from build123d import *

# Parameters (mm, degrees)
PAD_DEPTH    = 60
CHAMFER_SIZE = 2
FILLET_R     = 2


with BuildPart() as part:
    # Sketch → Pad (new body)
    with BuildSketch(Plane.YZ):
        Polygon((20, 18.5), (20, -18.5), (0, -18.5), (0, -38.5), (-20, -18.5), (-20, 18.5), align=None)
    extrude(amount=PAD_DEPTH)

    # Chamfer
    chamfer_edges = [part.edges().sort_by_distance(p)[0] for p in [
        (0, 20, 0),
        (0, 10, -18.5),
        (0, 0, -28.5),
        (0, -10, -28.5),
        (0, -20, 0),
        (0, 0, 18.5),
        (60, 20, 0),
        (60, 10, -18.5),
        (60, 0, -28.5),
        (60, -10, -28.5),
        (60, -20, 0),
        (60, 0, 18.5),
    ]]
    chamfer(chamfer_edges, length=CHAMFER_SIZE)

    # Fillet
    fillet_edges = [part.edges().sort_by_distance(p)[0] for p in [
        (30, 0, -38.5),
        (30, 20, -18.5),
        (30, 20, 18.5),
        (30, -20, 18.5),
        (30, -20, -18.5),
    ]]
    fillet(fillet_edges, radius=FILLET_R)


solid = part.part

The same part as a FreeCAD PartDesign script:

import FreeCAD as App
import Part
import Sketcher


def edges_at(feature, points):
    """Names of the edges that pass closest to the given points."""
    edges = feature.Shape.Edges
    near = lambda p: min(range(len(edges)), key=lambda i: edges[i].distToShape(Part.Vertex(*p))[0])
    return sorted({f"Edge{near(p) + 1}" for p in points})

doc = App.newDocument("Part")
body = doc.addObject("PartDesign::Body", "Body")

# Sketch on YZ plane
sketch1 = body.newObject("Sketcher::SketchObject", "Sketch")
sketch1.AttachmentSupport = (doc.getObject("YZ_Plane"), [""])
sketch1.MapMode = "FlatFace"
sketch1.addGeometry([
    Part.LineSegment(App.Vector(20, -18.5, 0), App.Vector(20, 18.5, 0)),  # 0
    Part.LineSegment(App.Vector(20, 18.5, 0), App.Vector(-20, 18.5, 0)),  # 1
    Part.LineSegment(App.Vector(-20, 18.5, 0), App.Vector(-20, -18.5, 0)),  # 2
    Part.LineSegment(App.Vector(-20, -18.5, 0), App.Vector(0, -38.5, 0)),  # 3
    Part.LineSegment(App.Vector(0, -38.5, 0), App.Vector(0, -18.5, 0)),  # 4
    Part.LineSegment(App.Vector(0, -18.5, 0), App.Vector(20, -18.5, 0)),  # 5
], False)
sketch1.addConstraint([
    Sketcher.Constraint("Coincident", 0, 2, 1, 1),
    Sketcher.Constraint("Coincident", 1, 2, 2, 1),
    Sketcher.Constraint("Coincident", 2, 2, 3, 1),
    Sketcher.Constraint("Coincident", 3, 2, 4, 1),
    Sketcher.Constraint("Coincident", 4, 2, 5, 1),
    Sketcher.Constraint("Coincident", 5, 2, 0, 1),
    Sketcher.Constraint("Vertical", 0),
    Sketcher.Constraint("Horizontal", 1),
    Sketcher.Constraint("Vertical", 2),
    Sketcher.Constraint("Vertical", 4),
    Sketcher.Constraint("Horizontal", 5),
    Sketcher.Constraint("Symmetric", 0, 2, 2, 2, -1, 1),
    Sketcher.Constraint("PointOnObject", 3, 2, -2),
    Sketcher.Constraint("Horizontal", 2, 2, 4, 2),
    Sketcher.Constraint("Equal", 5, 4),
    Sketcher.Constraint("DistanceX", 1, 2, 1, 1, 40.0),
    Sketcher.Constraint("DistanceY", 0, 1, 0, 2, 37.0),
])
pad1 = body.newObject("PartDesign::Pad", "Pad")
pad1.Profile = sketch1
pad1.Length = 60
doc.recompute()

chamfer = body.newObject("PartDesign::Chamfer", "Chamfer")
chamfer.Base = (pad1, edges_at(pad1, [
    (0, 20, 0),
    (0, 10, -18.5),
    (0, 0, -28.5),
    (0, -10, -28.5),
    (0, -20, 0),
    (0, 0, 18.5),
    (60, 20, 0),
    (60, 10, -18.5),
    (60, 0, -28.5),
    (60, -10, -28.5),
    (60, -20, 0),
    (60, 0, 18.5),
]))
chamfer.Size = 2
doc.recompute()

fillet = body.newObject("PartDesign::Fillet", "Fillet")
fillet.Base = (chamfer, edges_at(chamfer, [
    (30, 0, -38.5),
    (30, 20, -18.5),
    (30, 20, 18.5),
    (30, -20, 18.5),
    (30, -20, -18.5),
]))
fillet.Radius = 2

doc.recompute()
